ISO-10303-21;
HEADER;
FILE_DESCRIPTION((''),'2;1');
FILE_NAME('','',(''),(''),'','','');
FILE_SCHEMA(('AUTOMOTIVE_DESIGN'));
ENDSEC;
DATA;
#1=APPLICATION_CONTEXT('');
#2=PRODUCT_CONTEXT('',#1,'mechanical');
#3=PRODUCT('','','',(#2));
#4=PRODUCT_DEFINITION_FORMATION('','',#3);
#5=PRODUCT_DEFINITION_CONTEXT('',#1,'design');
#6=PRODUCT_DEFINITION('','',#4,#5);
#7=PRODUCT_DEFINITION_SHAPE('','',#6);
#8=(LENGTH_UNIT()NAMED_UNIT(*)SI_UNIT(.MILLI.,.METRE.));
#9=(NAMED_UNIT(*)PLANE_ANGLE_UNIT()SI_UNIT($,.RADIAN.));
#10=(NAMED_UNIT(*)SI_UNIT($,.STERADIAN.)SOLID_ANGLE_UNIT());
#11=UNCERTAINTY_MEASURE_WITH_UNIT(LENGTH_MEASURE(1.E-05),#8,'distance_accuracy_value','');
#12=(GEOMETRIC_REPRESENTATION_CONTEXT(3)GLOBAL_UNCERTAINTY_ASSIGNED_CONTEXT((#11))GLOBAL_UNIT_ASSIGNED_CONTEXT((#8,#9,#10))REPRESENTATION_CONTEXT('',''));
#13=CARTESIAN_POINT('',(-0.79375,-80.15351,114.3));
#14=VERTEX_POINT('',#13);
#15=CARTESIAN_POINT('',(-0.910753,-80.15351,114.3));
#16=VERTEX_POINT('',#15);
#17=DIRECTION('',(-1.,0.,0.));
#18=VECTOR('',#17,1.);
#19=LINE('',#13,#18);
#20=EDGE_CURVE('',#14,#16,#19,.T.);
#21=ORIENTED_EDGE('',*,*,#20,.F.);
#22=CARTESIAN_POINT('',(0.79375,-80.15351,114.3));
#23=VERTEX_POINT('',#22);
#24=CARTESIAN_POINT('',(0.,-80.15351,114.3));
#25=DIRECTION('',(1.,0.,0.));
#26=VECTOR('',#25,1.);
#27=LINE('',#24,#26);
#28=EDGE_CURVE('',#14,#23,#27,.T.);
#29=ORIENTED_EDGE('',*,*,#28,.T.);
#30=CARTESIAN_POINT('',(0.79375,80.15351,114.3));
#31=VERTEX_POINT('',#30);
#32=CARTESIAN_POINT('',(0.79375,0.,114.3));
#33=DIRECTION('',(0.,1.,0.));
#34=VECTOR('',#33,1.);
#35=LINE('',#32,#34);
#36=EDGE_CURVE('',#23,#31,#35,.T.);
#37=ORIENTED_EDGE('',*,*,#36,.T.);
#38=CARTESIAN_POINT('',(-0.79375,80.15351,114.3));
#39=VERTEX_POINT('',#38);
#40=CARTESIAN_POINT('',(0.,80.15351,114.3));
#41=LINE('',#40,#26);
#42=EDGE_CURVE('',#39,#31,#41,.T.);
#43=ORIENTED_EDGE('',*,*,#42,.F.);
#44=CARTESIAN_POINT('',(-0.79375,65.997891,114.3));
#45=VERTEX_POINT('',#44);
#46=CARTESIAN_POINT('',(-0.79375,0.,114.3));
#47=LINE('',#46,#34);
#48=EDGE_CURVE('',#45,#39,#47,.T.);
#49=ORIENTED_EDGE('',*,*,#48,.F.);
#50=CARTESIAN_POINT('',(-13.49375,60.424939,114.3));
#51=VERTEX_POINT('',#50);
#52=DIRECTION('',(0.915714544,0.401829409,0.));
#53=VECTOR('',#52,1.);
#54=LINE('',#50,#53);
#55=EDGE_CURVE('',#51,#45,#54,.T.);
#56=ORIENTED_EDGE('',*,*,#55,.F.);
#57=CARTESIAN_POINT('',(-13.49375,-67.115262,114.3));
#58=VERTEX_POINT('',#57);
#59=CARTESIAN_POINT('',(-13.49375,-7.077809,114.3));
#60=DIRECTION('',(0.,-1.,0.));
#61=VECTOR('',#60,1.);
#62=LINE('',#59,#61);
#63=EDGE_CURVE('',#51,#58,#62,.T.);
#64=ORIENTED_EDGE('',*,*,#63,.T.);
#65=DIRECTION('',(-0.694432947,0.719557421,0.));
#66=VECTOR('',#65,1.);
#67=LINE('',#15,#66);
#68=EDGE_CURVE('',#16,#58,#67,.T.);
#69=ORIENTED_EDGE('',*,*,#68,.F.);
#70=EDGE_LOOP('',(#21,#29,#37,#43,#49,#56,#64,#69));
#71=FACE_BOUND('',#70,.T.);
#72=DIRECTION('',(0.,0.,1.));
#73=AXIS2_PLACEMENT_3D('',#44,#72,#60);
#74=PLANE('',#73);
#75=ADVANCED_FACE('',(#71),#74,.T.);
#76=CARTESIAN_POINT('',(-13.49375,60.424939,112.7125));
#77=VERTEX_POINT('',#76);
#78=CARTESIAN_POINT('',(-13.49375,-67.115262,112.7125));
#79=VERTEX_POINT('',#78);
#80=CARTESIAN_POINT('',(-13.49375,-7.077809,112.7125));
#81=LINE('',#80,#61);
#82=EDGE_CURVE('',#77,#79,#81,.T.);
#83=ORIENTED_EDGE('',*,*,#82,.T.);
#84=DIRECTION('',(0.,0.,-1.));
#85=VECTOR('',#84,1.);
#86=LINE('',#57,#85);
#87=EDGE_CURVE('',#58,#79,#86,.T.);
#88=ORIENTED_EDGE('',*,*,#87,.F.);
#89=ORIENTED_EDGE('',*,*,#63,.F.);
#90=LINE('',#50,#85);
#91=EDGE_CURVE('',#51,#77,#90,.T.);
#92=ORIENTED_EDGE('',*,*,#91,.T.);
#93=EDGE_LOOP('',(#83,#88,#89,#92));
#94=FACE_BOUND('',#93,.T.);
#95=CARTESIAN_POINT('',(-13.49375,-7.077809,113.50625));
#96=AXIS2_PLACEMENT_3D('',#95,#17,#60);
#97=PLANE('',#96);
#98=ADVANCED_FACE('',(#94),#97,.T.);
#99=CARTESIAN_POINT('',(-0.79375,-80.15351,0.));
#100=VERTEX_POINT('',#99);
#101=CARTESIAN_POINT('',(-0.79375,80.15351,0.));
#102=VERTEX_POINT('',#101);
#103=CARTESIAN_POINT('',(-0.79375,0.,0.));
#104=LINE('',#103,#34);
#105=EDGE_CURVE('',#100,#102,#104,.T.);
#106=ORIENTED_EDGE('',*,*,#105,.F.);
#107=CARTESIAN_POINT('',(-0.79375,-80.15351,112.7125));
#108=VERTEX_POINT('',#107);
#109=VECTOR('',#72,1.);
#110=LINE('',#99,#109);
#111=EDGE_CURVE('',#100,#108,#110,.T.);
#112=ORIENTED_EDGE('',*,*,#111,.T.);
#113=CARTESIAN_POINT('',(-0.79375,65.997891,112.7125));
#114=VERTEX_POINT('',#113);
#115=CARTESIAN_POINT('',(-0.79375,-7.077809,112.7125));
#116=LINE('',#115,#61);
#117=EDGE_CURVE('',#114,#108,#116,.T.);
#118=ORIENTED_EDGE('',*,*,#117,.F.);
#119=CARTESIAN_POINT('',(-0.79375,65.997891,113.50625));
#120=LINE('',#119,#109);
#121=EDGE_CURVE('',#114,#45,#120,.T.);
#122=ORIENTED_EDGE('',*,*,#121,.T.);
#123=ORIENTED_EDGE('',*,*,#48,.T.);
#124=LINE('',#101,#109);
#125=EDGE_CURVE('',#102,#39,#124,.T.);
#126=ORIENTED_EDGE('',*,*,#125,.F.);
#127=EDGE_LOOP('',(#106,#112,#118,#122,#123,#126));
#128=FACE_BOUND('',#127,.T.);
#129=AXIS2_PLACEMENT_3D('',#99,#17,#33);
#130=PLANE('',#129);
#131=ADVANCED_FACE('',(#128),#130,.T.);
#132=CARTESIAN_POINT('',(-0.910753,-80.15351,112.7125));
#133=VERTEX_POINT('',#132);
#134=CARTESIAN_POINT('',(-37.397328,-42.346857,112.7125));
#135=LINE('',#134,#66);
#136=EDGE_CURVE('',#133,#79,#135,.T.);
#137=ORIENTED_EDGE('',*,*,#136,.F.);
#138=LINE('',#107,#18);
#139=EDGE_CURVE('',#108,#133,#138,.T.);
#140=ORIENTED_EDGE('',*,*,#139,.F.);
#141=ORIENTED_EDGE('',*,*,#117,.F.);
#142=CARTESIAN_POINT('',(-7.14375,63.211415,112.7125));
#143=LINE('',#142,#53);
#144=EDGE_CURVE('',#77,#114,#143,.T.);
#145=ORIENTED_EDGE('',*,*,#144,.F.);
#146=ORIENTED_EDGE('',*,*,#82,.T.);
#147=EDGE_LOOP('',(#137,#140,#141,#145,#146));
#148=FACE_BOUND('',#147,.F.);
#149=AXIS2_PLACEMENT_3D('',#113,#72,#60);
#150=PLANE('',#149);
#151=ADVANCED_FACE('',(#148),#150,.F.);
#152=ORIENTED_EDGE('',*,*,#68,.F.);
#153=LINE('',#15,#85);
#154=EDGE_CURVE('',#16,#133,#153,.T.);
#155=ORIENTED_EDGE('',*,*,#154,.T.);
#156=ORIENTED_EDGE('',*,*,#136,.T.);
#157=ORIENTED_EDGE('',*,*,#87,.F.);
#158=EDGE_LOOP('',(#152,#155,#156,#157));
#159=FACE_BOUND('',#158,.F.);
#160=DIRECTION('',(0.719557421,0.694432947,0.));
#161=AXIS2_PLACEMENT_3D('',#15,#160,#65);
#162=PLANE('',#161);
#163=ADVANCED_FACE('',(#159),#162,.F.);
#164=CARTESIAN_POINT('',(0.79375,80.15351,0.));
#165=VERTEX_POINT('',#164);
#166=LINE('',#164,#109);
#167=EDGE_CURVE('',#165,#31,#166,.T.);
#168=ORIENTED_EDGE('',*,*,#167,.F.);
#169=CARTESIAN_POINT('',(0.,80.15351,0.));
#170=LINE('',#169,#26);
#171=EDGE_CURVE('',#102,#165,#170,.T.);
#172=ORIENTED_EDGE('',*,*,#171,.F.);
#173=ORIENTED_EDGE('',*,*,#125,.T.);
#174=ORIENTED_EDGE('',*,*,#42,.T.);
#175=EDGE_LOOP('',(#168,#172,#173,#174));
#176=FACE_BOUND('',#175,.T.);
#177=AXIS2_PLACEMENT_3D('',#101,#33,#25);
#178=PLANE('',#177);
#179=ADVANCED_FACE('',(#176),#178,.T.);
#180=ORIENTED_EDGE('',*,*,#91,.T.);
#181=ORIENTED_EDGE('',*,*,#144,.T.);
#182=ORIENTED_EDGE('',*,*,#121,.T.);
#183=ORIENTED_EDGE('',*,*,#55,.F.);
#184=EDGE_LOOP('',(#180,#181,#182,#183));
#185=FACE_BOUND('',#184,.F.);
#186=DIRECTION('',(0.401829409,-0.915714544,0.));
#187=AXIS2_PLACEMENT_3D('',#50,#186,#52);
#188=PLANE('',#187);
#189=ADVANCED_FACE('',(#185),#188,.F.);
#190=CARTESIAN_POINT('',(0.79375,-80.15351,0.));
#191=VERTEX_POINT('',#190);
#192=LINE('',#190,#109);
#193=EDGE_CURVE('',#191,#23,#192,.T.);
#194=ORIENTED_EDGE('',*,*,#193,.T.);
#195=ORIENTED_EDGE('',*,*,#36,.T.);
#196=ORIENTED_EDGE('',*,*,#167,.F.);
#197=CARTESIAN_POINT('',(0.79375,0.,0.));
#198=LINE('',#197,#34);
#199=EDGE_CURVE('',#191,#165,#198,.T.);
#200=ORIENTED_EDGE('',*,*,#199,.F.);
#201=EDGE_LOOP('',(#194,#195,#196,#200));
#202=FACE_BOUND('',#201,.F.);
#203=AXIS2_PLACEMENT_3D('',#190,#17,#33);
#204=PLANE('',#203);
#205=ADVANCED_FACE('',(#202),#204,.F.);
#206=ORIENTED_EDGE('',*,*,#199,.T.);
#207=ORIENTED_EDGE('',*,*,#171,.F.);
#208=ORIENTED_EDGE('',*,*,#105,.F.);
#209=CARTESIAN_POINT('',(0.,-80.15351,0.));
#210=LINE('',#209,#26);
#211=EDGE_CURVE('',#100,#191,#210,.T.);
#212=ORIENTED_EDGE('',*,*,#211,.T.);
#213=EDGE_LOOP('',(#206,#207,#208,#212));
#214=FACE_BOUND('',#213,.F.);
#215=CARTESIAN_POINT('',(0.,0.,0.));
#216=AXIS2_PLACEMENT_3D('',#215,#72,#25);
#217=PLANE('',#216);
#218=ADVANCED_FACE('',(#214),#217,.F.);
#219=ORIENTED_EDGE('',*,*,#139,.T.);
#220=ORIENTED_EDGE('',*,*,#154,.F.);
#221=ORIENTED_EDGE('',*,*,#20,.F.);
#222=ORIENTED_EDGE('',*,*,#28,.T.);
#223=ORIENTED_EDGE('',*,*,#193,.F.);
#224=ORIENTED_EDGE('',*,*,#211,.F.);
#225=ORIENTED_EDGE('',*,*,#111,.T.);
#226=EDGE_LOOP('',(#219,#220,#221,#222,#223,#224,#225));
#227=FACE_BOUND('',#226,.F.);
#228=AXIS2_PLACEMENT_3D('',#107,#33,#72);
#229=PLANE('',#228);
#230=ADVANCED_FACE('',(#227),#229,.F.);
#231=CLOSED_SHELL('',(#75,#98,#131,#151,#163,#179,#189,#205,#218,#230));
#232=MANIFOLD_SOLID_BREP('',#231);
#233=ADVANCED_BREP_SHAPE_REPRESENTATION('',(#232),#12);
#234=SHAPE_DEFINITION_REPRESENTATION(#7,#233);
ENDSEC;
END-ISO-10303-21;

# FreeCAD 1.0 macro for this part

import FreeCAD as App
import Part
import Sketcher
from FreeCAD import Vector
Q = App.Units.Quantity


def add_polygon(sketch, points):
    """Adds a closed chain of lines whose ends are joined by coincident constraints."""
    first, n = sketch.GeometryCount, len(points)
    for a, b in zip(points, points[1:] + points[:1]):
        sketch.addGeometry(Part.LineSegment(App.Vector(*a, 0), App.Vector(*b, 0)), False)
    for i in range(n):
        sketch.addConstraint(Sketcher.Constraint("Coincident", first + i, 2, first + (i + 1) % n, 1))

doc = App.newDocument("Part")
params = doc.addObject("Spreadsheet::Sheet", "Params")
for row, (alias, value) in enumerate([
    ("sketch1_width", "0.0625 in"),
    ("pad1_length", "4.5 in"),
    ("sketch2_height", "0.0625 in"),
    ("pad2_length", "0.5 in"),
    ("sketch3_width", "0.5 in"),
    ("pocket1_length", "1 in"),
], start=1):
    params.set(f"A{row}", alias)
    params.set(f"B{row}", "=" + value)
    params.setAlias(f"B{row}", alias)

body = doc.addObject("PartDesign::Body", "Body")

# Sketch on XY plane
sketch1 = body.newObject("Sketcher::SketchObject", "Sketch")
sketch1.AttachmentSupport = (doc.getObject("XY_Plane"), [""])
sketch1.MapMode = "FlatFace"
add_polygon(sketch1, [(-0.79375, 80.15351), (-0.79375, -80.15351), (0.79375, -80.15351), (0.79375, 80.15351)])  # lines 0-3
sketch1.addConstraint([
    Sketcher.Constraint("Vertical", 0),
    Sketcher.Constraint("Horizontal", 1),
    Sketcher.Constraint("Vertical", 2),
    Sketcher.Constraint("Horizontal", 3),
    Sketcher.Constraint("Symmetric", 0, 2, 2, 2, -1, 1),
    Sketcher.Constraint("DistanceX", 1, 1, 1, 2, Q("0.0625 in")),
    Sketcher.Constraint("DistanceY", 0, 2, 0, 1, Q("6.3113 in")),
])
sketch1.setExpression("Constraints[9]", "Params.sketch1_width")
pad1 = body.newObject("PartDesign::Pad", "Pad")
pad1.Profile = sketch1
pad1.setExpression("Length", "Params.pad1_length")

# Sketch on YZ plane
sketch2 = body.newObject("Sketcher::SketchObject", "Sketch001")
sketch2.AttachmentSupport = (doc.getObject("YZ_Plane"), [""])
sketch2.MapMode = "FlatFace"
sketch2.AttachmentOffset = App.Placement(Vector(0, 0, -0.03125 * 25.4), App.Rotation())
add_polygon(sketch2, [(65.997891, 114.3), (65.997891, 112.7125), (-80.15351, 112.7125), (-80.15351, 114.3)])  # lines 0-3
sketch2.addConstraint([
    Sketcher.Constraint("Vertical", 0),
    Sketcher.Constraint("Horizontal", 1),
    Sketcher.Constraint("Vertical", 2),
    Sketcher.Constraint("Horizontal", 3),
    Sketcher.Constraint("DistanceY", -1, 1, 2, 2, Q("4.5 in")),
    Sketcher.Constraint("DistanceY", 0, 2, 0, 1, Q("0.0625 in")),
    Sketcher.Constraint("DistanceX", 1, 2, 1, 1, 146.151401),
    Sketcher.Constraint("DistanceX", -1, 1, 0, 2, 65.997891),
])
sketch2.setExpression("Constraints[9]", "Params.sketch2_height")
pad2 = body.newObject("PartDesign::Pad", "Pad001")
pad2.Profile = sketch2
pad2.setExpression("Length", "Params.pad2_length")
pad2.Reversed = True

# Sketch on XY plane
sketch3 = body.newObject("Sketcher::SketchObject", "Sketch002")
sketch3.AttachmentSupport = (doc.getObject("XY_Plane"), [""])
sketch3.MapMode = "FlatFace"
sketch3.AttachmentOffset = App.Placement(Vector(0, 0, 4.5 * 25.4), App.Rotation())
add_polygon(sketch3, [(-13.49375, -80.15351), (-0.910753, -80.15351), (-13.49375, -67.115262)])  # lines 0-2
add_polygon(sketch3, [(-13.49375, 60.424939), (-0.79375, 65.997891), (-13.49375, 65.997891)])  # lines 3-5
sketch3.addConstraint([
    Sketcher.Constraint("Horizontal", 0),
    Sketcher.Constraint("Vertical", 2),
    Sketcher.Constraint("Horizontal", 4),
    Sketcher.Constraint("Vertical", 5),
    Sketcher.Constraint("Vertical", 2, 2, 4, 2),
    Sketcher.Constraint("DistanceX", 4, 2, 4, 1, Q("0.5 in")),
    Sketcher.Constraint("DistanceX", 1, 2, -1, 1, Q("0.53125 in")),
    Sketcher.Constraint("DistanceY", 0, 2, 3, 2, 146.151401),
    Sketcher.Constraint("DistanceY", 1, 2, 5, 2, 127.540201),
    Sketcher.Constraint("Distance", 3, 13.868951),
    Sketcher.Constraint("DistanceX", 0, 1, 0, 2, 12.582997),
    Sketcher.Constraint("DistanceY", 0, 2, -1, 1, 80.15351),
])
sketch3.setExpression("Constraints[11]", "Params.sketch3_width")
pocket1 = body.newObject("PartDesign::Pocket", "Pocket")
pocket1.Profile = sketch3
pocket1.setExpression("Length", "Params.pocket1_length")

doc.recompute()
